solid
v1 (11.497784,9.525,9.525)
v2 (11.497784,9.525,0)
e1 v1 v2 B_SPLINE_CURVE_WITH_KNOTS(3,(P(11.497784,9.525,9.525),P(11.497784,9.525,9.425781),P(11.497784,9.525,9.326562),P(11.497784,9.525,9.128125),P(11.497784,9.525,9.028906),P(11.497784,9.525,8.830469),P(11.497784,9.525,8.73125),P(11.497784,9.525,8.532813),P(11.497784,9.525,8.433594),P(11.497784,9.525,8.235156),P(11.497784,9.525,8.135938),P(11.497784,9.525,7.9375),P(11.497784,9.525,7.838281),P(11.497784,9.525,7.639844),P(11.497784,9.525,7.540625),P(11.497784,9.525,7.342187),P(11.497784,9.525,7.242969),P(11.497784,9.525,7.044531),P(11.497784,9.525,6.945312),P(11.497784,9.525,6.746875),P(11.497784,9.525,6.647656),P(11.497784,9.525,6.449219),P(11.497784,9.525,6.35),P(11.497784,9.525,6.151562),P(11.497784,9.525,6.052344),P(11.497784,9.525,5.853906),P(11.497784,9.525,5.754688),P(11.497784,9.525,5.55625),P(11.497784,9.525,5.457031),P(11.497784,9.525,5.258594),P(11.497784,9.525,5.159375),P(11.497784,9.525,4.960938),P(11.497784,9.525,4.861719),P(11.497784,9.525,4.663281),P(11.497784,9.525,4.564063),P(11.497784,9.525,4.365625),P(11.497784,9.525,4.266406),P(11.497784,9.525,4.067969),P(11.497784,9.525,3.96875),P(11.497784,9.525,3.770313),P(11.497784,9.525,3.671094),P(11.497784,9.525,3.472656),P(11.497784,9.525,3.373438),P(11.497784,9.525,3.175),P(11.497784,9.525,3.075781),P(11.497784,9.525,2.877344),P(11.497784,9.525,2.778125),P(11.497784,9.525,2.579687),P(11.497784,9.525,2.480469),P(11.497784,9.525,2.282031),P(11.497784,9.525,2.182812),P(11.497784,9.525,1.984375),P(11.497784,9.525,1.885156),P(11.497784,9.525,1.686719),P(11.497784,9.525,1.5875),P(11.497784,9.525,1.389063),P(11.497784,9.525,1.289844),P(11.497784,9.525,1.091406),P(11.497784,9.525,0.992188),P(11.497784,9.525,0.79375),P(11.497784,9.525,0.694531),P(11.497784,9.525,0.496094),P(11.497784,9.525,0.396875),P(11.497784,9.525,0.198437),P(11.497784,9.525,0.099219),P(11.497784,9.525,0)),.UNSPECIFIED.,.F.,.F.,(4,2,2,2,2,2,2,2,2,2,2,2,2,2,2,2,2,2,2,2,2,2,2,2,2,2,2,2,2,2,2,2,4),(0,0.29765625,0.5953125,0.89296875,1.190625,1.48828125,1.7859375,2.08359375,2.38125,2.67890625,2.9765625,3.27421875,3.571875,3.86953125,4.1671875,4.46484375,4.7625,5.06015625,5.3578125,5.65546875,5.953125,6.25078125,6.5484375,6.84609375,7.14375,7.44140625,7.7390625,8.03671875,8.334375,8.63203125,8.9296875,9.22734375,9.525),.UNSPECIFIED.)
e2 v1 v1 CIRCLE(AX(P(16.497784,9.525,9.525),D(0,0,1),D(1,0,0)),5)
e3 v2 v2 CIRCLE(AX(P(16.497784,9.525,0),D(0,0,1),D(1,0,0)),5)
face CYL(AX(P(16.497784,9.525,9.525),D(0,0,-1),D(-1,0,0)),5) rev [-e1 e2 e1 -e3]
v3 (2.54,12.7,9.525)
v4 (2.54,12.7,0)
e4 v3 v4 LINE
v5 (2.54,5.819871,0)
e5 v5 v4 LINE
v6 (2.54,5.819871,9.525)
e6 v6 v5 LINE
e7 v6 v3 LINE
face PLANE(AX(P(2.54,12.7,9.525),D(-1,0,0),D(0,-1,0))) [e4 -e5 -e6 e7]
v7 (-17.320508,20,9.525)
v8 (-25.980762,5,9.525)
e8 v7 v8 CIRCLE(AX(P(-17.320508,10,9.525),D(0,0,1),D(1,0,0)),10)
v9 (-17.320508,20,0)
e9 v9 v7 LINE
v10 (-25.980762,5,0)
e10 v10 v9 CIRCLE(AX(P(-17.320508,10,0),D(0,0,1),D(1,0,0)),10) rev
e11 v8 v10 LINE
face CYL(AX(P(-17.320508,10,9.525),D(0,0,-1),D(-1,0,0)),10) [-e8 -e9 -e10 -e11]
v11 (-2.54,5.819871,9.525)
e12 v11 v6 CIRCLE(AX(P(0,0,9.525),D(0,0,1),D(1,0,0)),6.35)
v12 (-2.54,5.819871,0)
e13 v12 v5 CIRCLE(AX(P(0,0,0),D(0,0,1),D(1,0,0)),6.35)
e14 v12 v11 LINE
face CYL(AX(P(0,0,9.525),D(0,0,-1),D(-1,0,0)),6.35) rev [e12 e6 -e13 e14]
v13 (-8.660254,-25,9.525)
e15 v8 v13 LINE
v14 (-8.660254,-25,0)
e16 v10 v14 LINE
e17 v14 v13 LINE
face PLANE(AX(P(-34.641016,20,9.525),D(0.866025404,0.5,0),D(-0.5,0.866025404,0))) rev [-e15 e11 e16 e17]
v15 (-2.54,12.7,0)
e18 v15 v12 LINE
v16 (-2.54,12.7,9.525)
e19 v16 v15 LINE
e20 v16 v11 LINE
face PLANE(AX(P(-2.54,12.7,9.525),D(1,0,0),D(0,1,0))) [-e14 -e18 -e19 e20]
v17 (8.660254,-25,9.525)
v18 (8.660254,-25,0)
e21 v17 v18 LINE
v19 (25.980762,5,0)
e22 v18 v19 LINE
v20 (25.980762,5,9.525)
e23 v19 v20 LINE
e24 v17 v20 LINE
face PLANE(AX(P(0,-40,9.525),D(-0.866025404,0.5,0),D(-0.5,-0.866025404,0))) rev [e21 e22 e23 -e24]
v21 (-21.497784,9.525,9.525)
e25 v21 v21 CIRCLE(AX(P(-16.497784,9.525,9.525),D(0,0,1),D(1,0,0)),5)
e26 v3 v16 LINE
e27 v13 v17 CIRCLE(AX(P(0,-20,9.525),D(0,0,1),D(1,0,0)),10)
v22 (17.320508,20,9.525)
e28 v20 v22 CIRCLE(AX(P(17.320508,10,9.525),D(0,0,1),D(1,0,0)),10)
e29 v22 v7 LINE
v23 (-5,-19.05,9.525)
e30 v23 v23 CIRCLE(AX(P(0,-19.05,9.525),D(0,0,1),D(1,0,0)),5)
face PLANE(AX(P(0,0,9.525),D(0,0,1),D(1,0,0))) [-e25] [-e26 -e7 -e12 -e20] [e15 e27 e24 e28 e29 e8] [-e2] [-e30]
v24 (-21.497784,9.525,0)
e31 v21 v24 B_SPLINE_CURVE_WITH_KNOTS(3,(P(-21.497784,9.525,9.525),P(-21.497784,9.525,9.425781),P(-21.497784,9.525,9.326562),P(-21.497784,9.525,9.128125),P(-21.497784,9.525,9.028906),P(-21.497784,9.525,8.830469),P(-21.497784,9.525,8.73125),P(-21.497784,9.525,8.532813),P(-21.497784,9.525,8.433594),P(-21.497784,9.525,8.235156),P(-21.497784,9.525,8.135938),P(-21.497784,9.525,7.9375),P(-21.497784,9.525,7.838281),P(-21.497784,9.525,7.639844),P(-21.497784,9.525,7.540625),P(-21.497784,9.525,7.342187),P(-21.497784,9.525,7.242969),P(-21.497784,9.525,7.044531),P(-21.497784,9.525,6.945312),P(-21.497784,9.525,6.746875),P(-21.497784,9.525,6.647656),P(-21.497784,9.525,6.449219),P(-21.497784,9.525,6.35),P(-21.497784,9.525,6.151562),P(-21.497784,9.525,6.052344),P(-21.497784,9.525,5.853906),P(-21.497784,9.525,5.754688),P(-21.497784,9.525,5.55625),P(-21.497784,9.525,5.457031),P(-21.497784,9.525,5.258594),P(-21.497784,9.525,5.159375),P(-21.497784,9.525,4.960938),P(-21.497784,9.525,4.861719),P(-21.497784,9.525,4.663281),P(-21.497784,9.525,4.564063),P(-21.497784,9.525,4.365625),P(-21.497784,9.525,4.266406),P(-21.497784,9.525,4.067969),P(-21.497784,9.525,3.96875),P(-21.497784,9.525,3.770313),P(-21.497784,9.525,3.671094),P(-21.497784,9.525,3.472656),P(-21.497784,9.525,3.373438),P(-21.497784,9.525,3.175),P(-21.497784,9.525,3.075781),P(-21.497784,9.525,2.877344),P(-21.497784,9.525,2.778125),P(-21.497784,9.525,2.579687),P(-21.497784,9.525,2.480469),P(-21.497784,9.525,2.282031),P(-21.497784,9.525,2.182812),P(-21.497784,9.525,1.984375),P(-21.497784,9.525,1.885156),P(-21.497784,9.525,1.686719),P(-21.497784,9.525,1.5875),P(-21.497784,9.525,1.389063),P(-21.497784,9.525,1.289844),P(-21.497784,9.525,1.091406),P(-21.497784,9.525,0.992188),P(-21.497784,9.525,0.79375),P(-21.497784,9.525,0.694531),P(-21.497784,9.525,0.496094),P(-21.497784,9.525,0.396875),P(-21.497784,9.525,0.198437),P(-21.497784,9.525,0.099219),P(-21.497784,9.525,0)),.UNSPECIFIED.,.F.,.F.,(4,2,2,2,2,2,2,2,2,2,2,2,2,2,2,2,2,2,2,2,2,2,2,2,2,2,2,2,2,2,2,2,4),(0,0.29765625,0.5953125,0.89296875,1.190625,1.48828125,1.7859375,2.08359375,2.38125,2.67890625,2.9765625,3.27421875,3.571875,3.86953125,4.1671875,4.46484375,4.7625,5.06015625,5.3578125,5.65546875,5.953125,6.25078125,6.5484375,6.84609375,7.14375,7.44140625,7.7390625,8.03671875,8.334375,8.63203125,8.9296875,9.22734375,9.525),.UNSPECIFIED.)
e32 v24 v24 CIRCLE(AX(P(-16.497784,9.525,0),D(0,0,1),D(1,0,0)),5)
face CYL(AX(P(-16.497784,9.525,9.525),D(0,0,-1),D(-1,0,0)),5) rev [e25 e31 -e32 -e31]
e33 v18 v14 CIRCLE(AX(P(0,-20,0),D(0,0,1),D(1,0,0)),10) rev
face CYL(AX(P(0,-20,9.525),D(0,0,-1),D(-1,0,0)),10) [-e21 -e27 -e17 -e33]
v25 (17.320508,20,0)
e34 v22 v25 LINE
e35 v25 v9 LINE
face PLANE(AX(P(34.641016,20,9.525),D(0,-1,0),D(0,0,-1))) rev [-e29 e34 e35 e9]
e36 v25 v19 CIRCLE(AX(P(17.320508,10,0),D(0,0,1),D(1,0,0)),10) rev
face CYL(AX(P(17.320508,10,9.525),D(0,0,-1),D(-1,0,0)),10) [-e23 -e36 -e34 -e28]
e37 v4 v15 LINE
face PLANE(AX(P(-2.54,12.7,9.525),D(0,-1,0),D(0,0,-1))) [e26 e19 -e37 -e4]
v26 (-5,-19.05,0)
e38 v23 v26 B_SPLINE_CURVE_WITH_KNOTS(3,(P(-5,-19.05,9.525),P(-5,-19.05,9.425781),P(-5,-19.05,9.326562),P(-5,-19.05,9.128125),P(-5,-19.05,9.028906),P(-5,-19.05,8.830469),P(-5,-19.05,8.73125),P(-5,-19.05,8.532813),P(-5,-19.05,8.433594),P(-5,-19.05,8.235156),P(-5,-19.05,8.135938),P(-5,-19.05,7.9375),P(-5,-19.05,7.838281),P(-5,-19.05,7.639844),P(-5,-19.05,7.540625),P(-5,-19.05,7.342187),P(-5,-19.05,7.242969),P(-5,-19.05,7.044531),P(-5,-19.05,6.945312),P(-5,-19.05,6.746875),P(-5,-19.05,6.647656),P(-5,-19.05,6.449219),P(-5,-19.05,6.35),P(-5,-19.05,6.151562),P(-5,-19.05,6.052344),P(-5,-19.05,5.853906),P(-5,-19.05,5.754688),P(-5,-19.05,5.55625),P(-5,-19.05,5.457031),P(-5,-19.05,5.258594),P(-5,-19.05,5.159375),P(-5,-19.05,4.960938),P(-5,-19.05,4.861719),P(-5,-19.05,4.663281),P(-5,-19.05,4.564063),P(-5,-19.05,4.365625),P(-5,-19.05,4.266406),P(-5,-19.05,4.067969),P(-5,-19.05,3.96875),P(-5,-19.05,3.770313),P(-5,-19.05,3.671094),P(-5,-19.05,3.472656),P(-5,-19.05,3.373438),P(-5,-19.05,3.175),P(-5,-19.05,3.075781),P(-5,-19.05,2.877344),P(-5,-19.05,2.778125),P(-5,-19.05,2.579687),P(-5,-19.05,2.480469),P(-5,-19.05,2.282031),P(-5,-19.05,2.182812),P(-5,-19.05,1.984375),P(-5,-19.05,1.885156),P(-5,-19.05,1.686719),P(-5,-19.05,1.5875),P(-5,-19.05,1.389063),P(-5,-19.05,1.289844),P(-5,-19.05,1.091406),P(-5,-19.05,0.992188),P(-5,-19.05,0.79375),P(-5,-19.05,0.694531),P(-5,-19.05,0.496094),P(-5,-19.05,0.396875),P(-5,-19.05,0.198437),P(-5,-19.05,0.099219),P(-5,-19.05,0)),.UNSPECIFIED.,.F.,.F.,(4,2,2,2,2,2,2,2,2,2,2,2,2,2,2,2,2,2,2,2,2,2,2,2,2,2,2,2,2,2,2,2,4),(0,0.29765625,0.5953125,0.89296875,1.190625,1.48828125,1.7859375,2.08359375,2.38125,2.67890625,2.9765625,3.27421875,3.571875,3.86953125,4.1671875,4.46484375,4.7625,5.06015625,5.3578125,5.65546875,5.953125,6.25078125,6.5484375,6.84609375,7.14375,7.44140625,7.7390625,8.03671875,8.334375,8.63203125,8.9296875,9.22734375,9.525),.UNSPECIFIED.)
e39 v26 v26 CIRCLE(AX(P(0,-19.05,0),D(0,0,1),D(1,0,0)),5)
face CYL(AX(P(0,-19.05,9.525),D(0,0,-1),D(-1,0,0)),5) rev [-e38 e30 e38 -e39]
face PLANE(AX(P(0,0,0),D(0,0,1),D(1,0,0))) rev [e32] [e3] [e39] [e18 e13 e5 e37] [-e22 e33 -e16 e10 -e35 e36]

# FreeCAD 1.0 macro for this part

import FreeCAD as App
import Part
import Sketcher
Q = App.Units.Quantity


def edges_at(feature, points):
    """Names of the edges that pass closest to the given points."""
    edges = feature.Shape.Edges
    near = lambda p: min(range(len(edges)), key=lambda i: edges[i].distToShape(Part.Vertex(*p))[0])
    return sorted({f"Edge{near(p) + 1}" for p in points})

doc = App.newDocument("Part")
body = doc.addObject("PartDesign::Body", "Body")

sketch1 = doc.addObject("Sketcher::SketchObject", "Sketch")
body.addObject(sketch1)
sketch1.AttachmentSupport = (doc.XY_Plane, [""])
sketch1.MapMode = "FlatFace"
sketch1.addGeometry(Part.LineSegment(App.Vector(-35, 20, 0), App.Vector(0, -40, 0)), False)
sketch1.addGeometry(Part.LineSegment(App.Vector(0, -40, 0), App.Vector(35, 20, 0)), False)
sketch1.addGeometry(Part.LineSegment(App.Vector(35, 20, 0), App.Vector(-35, 20, 0)), False)
sketch1.addGeometry(Part.Circle(App.Vector(0, -19, 0), App.Vector(0, 0, 1), 5), False)
sketch1.addGeometry(Part.Circle(App.Vector(-16, 10, 0), App.Vector(0, 0, 1), 5), False)
sketch1.addGeometry(Part.Circle(App.Vector(0, 0, 0), App.Vector(0, 0, 1), 6), False)
sketch1.addGeometry(Part.Circle(App.Vector(16, 10, 0), App.Vector(0, 0, 1), 5), False)
sketch1.addConstraint(Sketcher.Constraint("Coincident", 0, 2, 1, 1))
sketch1.addConstraint(Sketcher.Constraint("Coincident", 1, 2, 2, 1))
sketch1.addConstraint(Sketcher.Constraint("Coincident", 2, 2, 0, 1))
sketch1.addConstraint(Sketcher.Constraint("Horizontal", 2))
sketch1.addConstraint(Sketcher.Constraint("Coincident", 5, 3, -1, 1))
sketch1.addConstraint(Sketcher.Constraint("Equal", 3, 4))
sketch1.addConstraint(Sketcher.Constraint("Equal", 4, 6))
sketch1.addConstraint(Sketcher.Constraint("Symmetric", 4, 3, 6, 3, -2))
sketch1.addConstraint(Sketcher.Constraint("PointOnObject", 3, 3, -2))
sketch1.addConstraint(Sketcher.Constraint("PointOnObject", 0, 2, -2))
sketch1.addConstraint(Sketcher.Constraint("Equal", 0, 1))
sketch1.addConstraint(Sketcher.Constraint("Diameter", 5, Q("0.5 in")))
sketch1.addConstraint(Sketcher.Constraint("Angle", 0, Q("-60 deg")))
sketch1.addConstraint(Sketcher.Constraint("Diameter", 3, Q("10 mm")))
sketch1.addConstraint(Sketcher.Constraint("DistanceY", 3, 3, -1, 1, Q("0.75 in")))
sketch1.addConstraint(Sketcher.Constraint("DistanceY", -1, 1, 4, 3, Q("0.375 in")))
sketch1.addConstraint(Sketcher.Constraint("DistanceY", 0, 2, -1, 1, Q("40 mm")))
sketch1.addConstraint(Sketcher.Constraint("DistanceY", -1, 1, 1, 2, Q("20 mm")))
sketch1.addConstraint(Sketcher.Constraint("DistanceX", 4, 3, 1, 2, Q("51.1388 mm")))
pad1 = doc.addObject("PartDesign::Pad", "Pad")
body.addObject(pad1)
pad1.Profile = sketch1
pad1.Length = Q("0.375 in")
doc.recompute()

fillet = doc.addObject("PartDesign::Fillet", "Fillet")
body.addObject(fillet)
fillet.Base = (pad1, edges_at(pad1, [(34.641, 20, 4.763), (0, -40, 4.763), (-34.641, 20, 4.763)]))
fillet.Radius = 10

sketch2 = doc.addObject("Sketcher::SketchObject", "Sketch001")
body.addObject(sketch2)
sketch2.AttachmentSupport = (doc.XY_Plane, [""])
sketch2.MapMode = "FlatFace"
sketch2.addGeometry(Part.LineSegment(App.Vector(-3, 13, 0), App.Vector(-3, 0, 0)), False)
sketch2.addGeometry(Part.LineSegment(App.Vector(-3, 0, 0), App.Vector(3, 0, 0)), False)
sketch2.addGeometry(Part.LineSegment(App.Vector(3, 0, 0), App.Vector(3, 13, 0)), False)
sketch2.addGeometry(Part.LineSegment(App.Vector(3, 13, 0), App.Vector(-3, 13, 0)), False)
sketch2.addConstraint(Sketcher.Constraint("Coincident", 0, 2, 1, 1))
sketch2.addConstraint(Sketcher.Constraint("Coincident", 1, 2, 2, 1))
sketch2.addConstraint(Sketcher.Constraint("Coincident", 2, 2, 3, 1))
sketch2.addConstraint(Sketcher.Constraint("Coincident", 3, 2, 0, 1))
sketch2.addConstraint(Sketcher.Constraint("Vertical", 0))
sketch2.addConstraint(Sketcher.Constraint("Horizontal", 1))
sketch2.addConstraint(Sketcher.Constraint("Vertical", 2))
sketch2.addConstraint(Sketcher.Constraint("Horizontal", 3))
sketch2.addConstraint(Sketcher.Constraint("Symmetric", 0, 2, 1, 2, -1, 1))
sketch2.addConstraint(Sketcher.Constraint("DistanceX", 1, 1, 1, 2, Q("0.2 in")))
sketch2.addConstraint(Sketcher.Constraint("DistanceY", 0, 2, 0, 1, Q("0.5 in")))
pocket1 = doc.addObject("PartDesign::Pocket", "Pocket")
body.addObject(pocket1)
pocket1.Profile = sketch2
pocket1.Type = "ThroughAll"
pocket1.Reversed = True

doc.recompute()
